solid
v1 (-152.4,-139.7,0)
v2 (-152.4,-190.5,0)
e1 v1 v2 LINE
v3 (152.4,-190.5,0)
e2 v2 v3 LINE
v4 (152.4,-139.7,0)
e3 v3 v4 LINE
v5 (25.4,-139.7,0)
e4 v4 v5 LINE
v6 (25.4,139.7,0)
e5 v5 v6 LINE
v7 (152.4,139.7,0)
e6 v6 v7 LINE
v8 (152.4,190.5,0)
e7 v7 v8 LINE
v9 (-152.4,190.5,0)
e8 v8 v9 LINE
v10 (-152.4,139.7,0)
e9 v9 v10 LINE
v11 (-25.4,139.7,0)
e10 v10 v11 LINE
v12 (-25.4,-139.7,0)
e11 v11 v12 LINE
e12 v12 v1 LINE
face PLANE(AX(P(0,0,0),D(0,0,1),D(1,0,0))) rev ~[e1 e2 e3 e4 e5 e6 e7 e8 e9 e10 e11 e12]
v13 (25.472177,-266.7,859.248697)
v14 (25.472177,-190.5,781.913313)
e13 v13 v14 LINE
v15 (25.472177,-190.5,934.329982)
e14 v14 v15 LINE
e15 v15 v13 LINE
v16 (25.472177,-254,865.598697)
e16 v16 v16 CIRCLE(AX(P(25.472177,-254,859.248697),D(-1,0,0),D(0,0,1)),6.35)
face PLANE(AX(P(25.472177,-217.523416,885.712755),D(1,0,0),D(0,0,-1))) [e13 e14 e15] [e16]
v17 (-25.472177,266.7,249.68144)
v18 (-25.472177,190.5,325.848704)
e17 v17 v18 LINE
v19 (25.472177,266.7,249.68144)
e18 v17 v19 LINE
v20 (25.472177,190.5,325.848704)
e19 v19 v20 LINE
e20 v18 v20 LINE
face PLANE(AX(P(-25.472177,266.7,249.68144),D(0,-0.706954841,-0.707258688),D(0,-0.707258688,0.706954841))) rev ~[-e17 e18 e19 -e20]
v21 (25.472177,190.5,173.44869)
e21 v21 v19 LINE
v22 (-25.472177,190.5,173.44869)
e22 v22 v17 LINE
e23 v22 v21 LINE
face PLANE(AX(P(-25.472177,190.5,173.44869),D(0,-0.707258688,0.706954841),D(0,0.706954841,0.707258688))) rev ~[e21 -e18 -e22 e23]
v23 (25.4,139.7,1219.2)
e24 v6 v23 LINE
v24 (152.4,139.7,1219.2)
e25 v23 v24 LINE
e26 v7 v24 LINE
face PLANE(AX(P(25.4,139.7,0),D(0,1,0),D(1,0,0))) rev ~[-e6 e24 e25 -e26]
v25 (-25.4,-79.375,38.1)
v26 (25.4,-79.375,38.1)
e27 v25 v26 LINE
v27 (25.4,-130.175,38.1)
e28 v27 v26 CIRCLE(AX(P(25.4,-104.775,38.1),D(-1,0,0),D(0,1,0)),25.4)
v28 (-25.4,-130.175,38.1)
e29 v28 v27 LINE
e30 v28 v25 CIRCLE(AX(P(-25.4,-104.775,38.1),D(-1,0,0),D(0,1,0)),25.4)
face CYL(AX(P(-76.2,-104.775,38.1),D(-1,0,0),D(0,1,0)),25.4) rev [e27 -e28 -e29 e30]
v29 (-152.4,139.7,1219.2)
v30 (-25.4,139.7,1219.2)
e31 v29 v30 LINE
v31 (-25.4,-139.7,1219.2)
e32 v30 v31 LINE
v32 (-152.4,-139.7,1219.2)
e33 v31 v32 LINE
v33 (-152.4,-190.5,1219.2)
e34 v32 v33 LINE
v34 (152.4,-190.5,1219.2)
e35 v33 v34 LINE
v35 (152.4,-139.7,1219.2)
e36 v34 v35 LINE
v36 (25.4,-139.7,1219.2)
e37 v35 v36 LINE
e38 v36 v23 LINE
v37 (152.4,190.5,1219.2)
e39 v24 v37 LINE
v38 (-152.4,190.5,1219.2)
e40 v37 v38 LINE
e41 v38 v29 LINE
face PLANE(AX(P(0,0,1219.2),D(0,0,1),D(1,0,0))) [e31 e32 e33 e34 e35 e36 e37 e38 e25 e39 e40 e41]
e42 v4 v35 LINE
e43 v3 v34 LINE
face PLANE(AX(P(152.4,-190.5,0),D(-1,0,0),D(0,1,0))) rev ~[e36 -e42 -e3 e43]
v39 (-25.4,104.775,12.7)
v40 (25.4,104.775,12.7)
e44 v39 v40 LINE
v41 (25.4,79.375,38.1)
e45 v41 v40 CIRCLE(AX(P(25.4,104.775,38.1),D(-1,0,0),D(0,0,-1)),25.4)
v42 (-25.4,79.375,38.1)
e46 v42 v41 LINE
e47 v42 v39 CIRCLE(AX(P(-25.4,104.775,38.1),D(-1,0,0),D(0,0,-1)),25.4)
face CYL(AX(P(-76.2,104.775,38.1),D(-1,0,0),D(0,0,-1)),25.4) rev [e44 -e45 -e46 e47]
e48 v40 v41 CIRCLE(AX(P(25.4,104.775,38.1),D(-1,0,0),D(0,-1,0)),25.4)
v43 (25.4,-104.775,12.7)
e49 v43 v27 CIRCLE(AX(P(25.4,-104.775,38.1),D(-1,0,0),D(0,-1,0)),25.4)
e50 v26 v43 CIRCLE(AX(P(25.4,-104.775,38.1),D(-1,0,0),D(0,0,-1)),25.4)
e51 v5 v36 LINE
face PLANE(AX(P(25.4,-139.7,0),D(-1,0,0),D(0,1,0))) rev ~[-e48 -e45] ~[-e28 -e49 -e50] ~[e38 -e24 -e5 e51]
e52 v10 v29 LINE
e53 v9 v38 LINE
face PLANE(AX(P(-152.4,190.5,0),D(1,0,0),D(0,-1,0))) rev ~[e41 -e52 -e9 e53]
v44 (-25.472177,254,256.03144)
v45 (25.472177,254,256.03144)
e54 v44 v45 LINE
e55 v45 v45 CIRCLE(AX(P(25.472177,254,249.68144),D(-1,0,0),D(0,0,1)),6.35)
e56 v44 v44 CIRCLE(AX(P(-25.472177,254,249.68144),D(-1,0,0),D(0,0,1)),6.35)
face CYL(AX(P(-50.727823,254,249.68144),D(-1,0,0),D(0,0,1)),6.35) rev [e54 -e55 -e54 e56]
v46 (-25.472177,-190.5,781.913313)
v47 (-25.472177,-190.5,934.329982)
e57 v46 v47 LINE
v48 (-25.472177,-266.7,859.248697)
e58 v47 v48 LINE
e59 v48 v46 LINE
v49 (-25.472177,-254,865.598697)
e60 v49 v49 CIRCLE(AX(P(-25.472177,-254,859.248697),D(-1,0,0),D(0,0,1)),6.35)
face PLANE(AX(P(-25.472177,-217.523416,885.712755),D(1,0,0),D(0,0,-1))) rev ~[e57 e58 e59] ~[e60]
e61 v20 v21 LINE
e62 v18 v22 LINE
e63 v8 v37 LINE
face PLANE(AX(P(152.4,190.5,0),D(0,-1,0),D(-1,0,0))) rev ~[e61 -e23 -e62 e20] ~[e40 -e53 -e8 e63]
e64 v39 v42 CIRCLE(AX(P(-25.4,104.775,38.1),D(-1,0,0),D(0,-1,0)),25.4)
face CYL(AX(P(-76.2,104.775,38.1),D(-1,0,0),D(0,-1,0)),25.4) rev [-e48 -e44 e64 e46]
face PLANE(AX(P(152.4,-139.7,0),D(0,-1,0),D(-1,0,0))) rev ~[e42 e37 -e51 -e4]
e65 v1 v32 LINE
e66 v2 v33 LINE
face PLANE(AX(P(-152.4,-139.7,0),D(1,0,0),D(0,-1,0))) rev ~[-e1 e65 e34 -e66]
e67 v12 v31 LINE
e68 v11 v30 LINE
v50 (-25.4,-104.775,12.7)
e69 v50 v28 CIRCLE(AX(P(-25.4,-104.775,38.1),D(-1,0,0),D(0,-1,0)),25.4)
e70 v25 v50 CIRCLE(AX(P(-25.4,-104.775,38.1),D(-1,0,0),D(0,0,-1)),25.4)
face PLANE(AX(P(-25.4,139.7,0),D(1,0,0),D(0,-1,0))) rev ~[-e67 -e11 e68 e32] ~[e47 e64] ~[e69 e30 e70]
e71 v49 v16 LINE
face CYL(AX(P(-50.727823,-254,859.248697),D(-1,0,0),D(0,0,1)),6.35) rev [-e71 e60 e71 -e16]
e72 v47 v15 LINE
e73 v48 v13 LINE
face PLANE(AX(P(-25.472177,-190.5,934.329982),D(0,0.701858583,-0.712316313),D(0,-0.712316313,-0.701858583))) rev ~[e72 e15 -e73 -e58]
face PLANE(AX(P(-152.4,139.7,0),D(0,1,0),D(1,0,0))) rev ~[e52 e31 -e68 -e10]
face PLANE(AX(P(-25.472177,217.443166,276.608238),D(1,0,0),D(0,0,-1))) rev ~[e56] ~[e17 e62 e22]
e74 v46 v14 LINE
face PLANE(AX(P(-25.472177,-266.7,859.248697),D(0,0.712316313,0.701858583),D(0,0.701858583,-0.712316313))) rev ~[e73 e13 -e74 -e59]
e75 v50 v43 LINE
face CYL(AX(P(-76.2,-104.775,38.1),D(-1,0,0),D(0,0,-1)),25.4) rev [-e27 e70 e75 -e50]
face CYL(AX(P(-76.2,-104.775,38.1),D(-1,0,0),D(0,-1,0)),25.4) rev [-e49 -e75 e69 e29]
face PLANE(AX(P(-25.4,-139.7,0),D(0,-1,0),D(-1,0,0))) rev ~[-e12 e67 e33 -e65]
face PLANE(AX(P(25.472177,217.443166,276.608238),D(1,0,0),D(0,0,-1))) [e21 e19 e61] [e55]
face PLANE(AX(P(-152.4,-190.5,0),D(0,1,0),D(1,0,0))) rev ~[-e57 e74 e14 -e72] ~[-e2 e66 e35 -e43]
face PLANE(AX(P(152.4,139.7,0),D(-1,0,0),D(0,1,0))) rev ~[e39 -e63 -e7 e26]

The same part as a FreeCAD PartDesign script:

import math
import FreeCAD as App
import Part
import Sketcher
Q = App.Units.Quantity

doc = App.newDocument("Part")
params = doc.addObject("Spreadsheet::Sheet", "Params")
for row, (alias, value) in enumerate([
    ("sketch1_width", "12 in"),
    ("sketch1_width2", "5 in"),
    ("sketch1_height", "2 in"),
    ("sketch1_height2", "11 in"),
    ("pad1_length", "48 in"),
    ("pad2_length", "0.072177 mm"),
    ("pad2_length2", "50.872177 mm"),
    ("pad3_length", "0.072177 mm"),
    ("pad3_length2", "50.872177 mm"),
    ("sketch4_radius", "1 in"),
    ("sketch5_diameter", "0.5 in"),
], start=1):
    params.set(f"A{row}", alias)
    params.set(f"B{row}", "=" + value)
    params.setAlias(f"B{row}", alias)

body = doc.addObject("PartDesign::Body", "Body")

# Sketch on XY plane
sketch1 = body.newObject("Sketcher::SketchObject", "Sketch")
sketch1.AttachmentSupport = (doc.getObject("XY_Plane"), [""])
sketch1.MapMode = "FlatFace"
sketch1.addGeometry([
    Part.LineSegment(App.Vector(152, 190, 0), App.Vector(-152, 190, 0)),  # 0
    Part.LineSegment(App.Vector(-152, 190, 0), App.Vector(-152, 140, 0)),  # 1
    Part.LineSegment(App.Vector(-152, 140, 0), App.Vector(-25, 140, 0)),  # 2
    Part.LineSegment(App.Vector(-25, 140, 0), App.Vector(-25, -140, 0)),  # 3
    Part.LineSegment(App.Vector(-25, -140, 0), App.Vector(-152, -140, 0)),  # 4
    Part.LineSegment(App.Vector(-152, -140, 0), App.Vector(-152, -190, 0)),  # 5
    Part.LineSegment(App.Vector(-152, -190, 0), App.Vector(152, -190, 0)),  # 6
    Part.LineSegment(App.Vector(152, -190, 0), App.Vector(152, -140, 0)),  # 7
    Part.LineSegment(App.Vector(152, -140, 0), App.Vector(25, -140, 0)),  # 8
    Part.LineSegment(App.Vector(25, -140, 0), App.Vector(25, 140, 0)),  # 9
    Part.LineSegment(App.Vector(25, 140, 0), App.Vector(152, 140, 0)),  # 10
    Part.LineSegment(App.Vector(152, 140, 0), App.Vector(152, 190, 0)),  # 11
], False)
sketch1.addConstraint([
    Sketcher.Constraint("Coincident", 0, 2, 1, 1),
    Sketcher.Constraint("Coincident", 1, 2, 2, 1),
    Sketcher.Constraint("Coincident", 2, 2, 3, 1),
    Sketcher.Constraint("Coincident", 3, 2, 4, 1),
    Sketcher.Constraint("Coincident", 4, 2, 5, 1),
    Sketcher.Constraint("Coincident", 5, 2, 6, 1),
    Sketcher.Constraint("Coincident", 6, 2, 7, 1),
    Sketcher.Constraint("Coincident", 7, 2, 8, 1),
    Sketcher.Constraint("Coincident", 8, 2, 9, 1),
    Sketcher.Constraint("Coincident", 9, 2, 10, 1),
    Sketcher.Constraint("Coincident", 10, 2, 11, 1),
    Sketcher.Constraint("Coincident", 11, 2, 0, 1),
    Sketcher.Constraint("Horizontal", 0),
    Sketcher.Constraint("Vertical", 1),
    Sketcher.Constraint("Horizontal", 2),
    Sketcher.Constraint("Vertical", 3),
    Sketcher.Constraint("Horizontal", 4),
    Sketcher.Constraint("Vertical", 5),
    Sketcher.Constraint("Horizontal", 6),
    Sketcher.Constraint("Vertical", 7),
    Sketcher.Constraint("Horizontal", 8),
    Sketcher.Constraint("Vertical", 9),
    Sketcher.Constraint("Horizontal", 10),
    Sketcher.Constraint("Vertical", 11),
    Sketcher.Constraint("Symmetric", 0, 2, 6, 2, -1, 1),
    Sketcher.Constraint("Symmetric", 2, 2, 8, 2, -1, 1),
    Sketcher.Constraint("Symmetric", 4, 2, 10, 2, -1, 1),
    Sketcher.Constraint("Symmetric", 4, 2, 7, 2, -2),
    Sketcher.Constraint("DistanceX", 0, 2, 0, 1, Q("12 in")),
    Sketcher.Constraint("DistanceX", 2, 1, 2, 2, Q("5 in")),
    Sketcher.Constraint("DistanceY", 1, 2, 1, 1, Q("2 in")),
    Sketcher.Constraint("DistanceY", 3, 2, 3, 1, Q("11 in")),
])
sketch1.setExpression("Constraints[28]", "Params.sketch1_width")
sketch1.setExpression("Constraints[29]", "Params.sketch1_width2")
sketch1.setExpression("Constraints[30]", "Params.sketch1_height")
sketch1.setExpression("Constraints[31]", "Params.sketch1_height2")
pad1 = body.newObject("PartDesign::Pad", "Pad")
pad1.Profile = sketch1
pad1.setExpression("Length", "Params.pad1_length")

# Sketch on YZ plane
sketch2 = body.newObject("Sketcher::SketchObject", "Sketch001")
sketch2.AttachmentSupport = (doc.getObject("YZ_Plane"), [""])
sketch2.MapMode = "FlatFace"
sketch2.AttachmentOffset = App.Placement(App.Vector(0, 0, 1 * 25.4), App.Rotation())
sketch2.addGeometry([
    Part.LineSegment(App.Vector(190, 326, 0), App.Vector(190, 173, 0)),
    Part.LineSegment(App.Vector(190, 173, 0), App.Vector(267, 250, 0)),
    Part.LineSegment(App.Vector(267, 250, 0), App.Vector(190, 326, 0)),
], False)
sketch2.addConstraint([
    Sketcher.Constraint("Coincident", 0, 2, 1, 1),
    Sketcher.Constraint("Coincident", 1, 2, 2, 1),
    Sketcher.Constraint("Coincident", 2, 2, 0, 1),
    Sketcher.Constraint("Vertical", 0),
    Sketcher.Constraint("Perpendicular", 1, 2),
    Sketcher.Constraint("DistanceX", 0, 2, 1, 2, Q("3 in")),
    Sketcher.Constraint("DistanceX", -1, 1, 0, 2, Q("7.5 in")),
    Sketcher.Constraint("DistanceY", -1, 1, 0, 2, 173.44869),
    Sketcher.Constraint("DistanceY", -1, 1, 1, 2, 249.68144),
])
pad2 = body.newObject("PartDesign::Pad", "Pad001")
pad2.Profile = sketch2
pad2.Type = "TwoLengths"
pad2.setExpression("Length", "Params.pad2_length")
pad2.setExpression("Length2", "Params.pad2_length2")

# Sketch on YZ plane
sketch3 = body.newObject("Sketcher::SketchObject", "Sketch002")
sketch3.AttachmentSupport = (doc.getObject("YZ_Plane"), [""])
sketch3.MapMode = "FlatFace"
sketch3.AttachmentOffset = App.Placement(App.Vector(0, 0, 1 * 25.4), App.Rotation())
sketch3.addGeometry([
    Part.LineSegment(App.Vector(-190, 934, 0), App.Vector(-267, 859, 0)),
    Part.LineSegment(App.Vector(-267, 859, 0), App.Vector(-190, 782, 0)),
    Part.LineSegment(App.Vector(-190, 782, 0), App.Vector(-190, 934, 0)),
], False)
sketch3.addConstraint([
    Sketcher.Constraint("Coincident", 0, 2, 1, 1),
    Sketcher.Constraint("Coincident", 1, 2, 2, 1),
    Sketcher.Constraint("Coincident", 2, 2, 0, 1),
    Sketcher.Constraint("Vertical", 2),
    Sketcher.Constraint("Perpendicular", 0, 1),
    Sketcher.Constraint("DistanceX", 0, 2, 1, 2, Q("3 in")),
    Sketcher.Constraint("DistanceX", 0, 2, -1, 1, Q("10.5 in")),
    Sketcher.Constraint("DistanceY", 1, 2, 0, 2, Q("3.0447002 in")),
    Sketcher.Constraint("DistanceY", -1, 1, 2, 2, 934.329982),
])
pad3 = body.newObject("PartDesign::Pad", "Pad002")
pad3.Profile = sketch3
pad3.Type = "TwoLengths"
pad3.setExpression("Length", "Params.pad3_length")
pad3.setExpression("Length2", "Params.pad3_length2")

# Sketch on YZ plane
sketch4 = body.newObject("Sketcher::SketchObject", "Sketch003")
sketch4.AttachmentSupport = (doc.getObject("YZ_Plane"), [""])
sketch4.MapMode = "FlatFace"
sketch4.AttachmentOffset = App.Placement(App.Vector(0, 0, 1 * 25.4), App.Rotation())
sketch4.addGeometry([
    Part.ArcOfCircle(Part.Circle(App.Vector(105, 38, 0), App.Vector(0, 0, 1), 25), math.radians(180), math.radians(270)),  # 0
    Part.ArcOfCircle(Part.Circle(App.Vector(105, 38, 0), App.Vector(0, 0, 1), 25), math.radians(-90), math.radians(180)),  # 1
    Part.ArcOfCircle(Part.Circle(App.Vector(-105, 38, 0), App.Vector(0, 0, 1), 25), math.radians(-90), math.radians(0)),  # 2
    Part.ArcOfCircle(Part.Circle(App.Vector(-105, 38, 0), App.Vector(0, 0, 1), 25), math.radians(0), math.radians(180)),  # 3
    Part.ArcOfCircle(Part.Circle(App.Vector(-105, 38, 0), App.Vector(0, 0, 1), 25), math.radians(180), math.radians(270)),  # 4
], False)
sketch4.addConstraint([
    Sketcher.Constraint("Tangent", 0, 1, 1, 2),
    Sketcher.Constraint("Coincident", 1, 1, 0, 2),
    Sketcher.Constraint("Tangent", 2, 2, 3, 1),
    Sketcher.Constraint("Tangent", 3, 2, 4, 1),
    Sketcher.Constraint("Tangent", 4, 2, 2, 1),
    Sketcher.Constraint("Equal", 1, 2),
    Sketcher.Constraint("Symmetric", 0, 3, 2, 3, -2),
    Sketcher.Constraint("Horizontal", 4, 3, 0, 1),
    Sketcher.Constraint("Horizontal", 0, 1, 2, 2),
    Sketcher.Constraint("Horizontal", 2, 2, 3, 2),
    Sketcher.Constraint("Vertical", 0, 3, 1, 1),
    Sketcher.Constraint("Vertical", 3, 3, 4, 2),
    Sketcher.Constraint("Radius", 0, Q("1 in")),
    Sketcher.Constraint("DistanceY", -1, 1, 0, 3, Q("1.5 in")),
    Sketcher.Constraint("DistanceX", 2, 3, 0, 3, Q("8.25 in")),
])
sketch4.setExpression("Constraints[12]", "Params.sketch4_radius")
pocket1 = body.newObject("PartDesign::Pocket", "Pocket")
pocket1.Profile = sketch4
pocket1.Type = "ThroughAll"
pocket1.Midplane = True

# Sketch on YZ plane
sketch5 = body.newObject("Sketcher::SketchObject", "Sketch004")
sketch5.AttachmentSupport = (doc.getObject("YZ_Plane"), [""])
sketch5.MapMode = "FlatFace"
sketch5.AttachmentOffset = App.Placement(App.Vector(0, 0, 25.472177), App.Rotation())
sketch5.addGeometry([
    Part.Circle(App.Vector(254, 250, 0), App.Vector(0, 0, 1), 6),
    Part.Circle(App.Vector(-254, 859, 0), App.Vector(0, 0, 1), 6),
], False)
sketch5.addConstraint([
    Sketcher.Constraint("Equal", 0, 1),
    Sketcher.Constraint("Diameter", 0, Q("0.5 in")),
    Sketcher.Constraint("DistanceX", -1, 1, 0, 3, Q("10 in")),
    Sketcher.Constraint("DistanceX", 1, 3, -1, 1, Q("10 in")),
    Sketcher.Constraint("DistanceY", -1, 1, 0, 3, 249.68144),
    Sketcher.Constraint("DistanceY", -1, 1, 1, 3, 859.248697),
])
sketch5.setExpression("Constraints[1]", "Params.sketch5_diameter")
pocket2 = body.newObject("PartDesign::Pocket", "Pocket001")
pocket2.Profile = sketch5
pocket2.Type = "ThroughAll"
pocket2.Midplane = True

doc.recompute()
